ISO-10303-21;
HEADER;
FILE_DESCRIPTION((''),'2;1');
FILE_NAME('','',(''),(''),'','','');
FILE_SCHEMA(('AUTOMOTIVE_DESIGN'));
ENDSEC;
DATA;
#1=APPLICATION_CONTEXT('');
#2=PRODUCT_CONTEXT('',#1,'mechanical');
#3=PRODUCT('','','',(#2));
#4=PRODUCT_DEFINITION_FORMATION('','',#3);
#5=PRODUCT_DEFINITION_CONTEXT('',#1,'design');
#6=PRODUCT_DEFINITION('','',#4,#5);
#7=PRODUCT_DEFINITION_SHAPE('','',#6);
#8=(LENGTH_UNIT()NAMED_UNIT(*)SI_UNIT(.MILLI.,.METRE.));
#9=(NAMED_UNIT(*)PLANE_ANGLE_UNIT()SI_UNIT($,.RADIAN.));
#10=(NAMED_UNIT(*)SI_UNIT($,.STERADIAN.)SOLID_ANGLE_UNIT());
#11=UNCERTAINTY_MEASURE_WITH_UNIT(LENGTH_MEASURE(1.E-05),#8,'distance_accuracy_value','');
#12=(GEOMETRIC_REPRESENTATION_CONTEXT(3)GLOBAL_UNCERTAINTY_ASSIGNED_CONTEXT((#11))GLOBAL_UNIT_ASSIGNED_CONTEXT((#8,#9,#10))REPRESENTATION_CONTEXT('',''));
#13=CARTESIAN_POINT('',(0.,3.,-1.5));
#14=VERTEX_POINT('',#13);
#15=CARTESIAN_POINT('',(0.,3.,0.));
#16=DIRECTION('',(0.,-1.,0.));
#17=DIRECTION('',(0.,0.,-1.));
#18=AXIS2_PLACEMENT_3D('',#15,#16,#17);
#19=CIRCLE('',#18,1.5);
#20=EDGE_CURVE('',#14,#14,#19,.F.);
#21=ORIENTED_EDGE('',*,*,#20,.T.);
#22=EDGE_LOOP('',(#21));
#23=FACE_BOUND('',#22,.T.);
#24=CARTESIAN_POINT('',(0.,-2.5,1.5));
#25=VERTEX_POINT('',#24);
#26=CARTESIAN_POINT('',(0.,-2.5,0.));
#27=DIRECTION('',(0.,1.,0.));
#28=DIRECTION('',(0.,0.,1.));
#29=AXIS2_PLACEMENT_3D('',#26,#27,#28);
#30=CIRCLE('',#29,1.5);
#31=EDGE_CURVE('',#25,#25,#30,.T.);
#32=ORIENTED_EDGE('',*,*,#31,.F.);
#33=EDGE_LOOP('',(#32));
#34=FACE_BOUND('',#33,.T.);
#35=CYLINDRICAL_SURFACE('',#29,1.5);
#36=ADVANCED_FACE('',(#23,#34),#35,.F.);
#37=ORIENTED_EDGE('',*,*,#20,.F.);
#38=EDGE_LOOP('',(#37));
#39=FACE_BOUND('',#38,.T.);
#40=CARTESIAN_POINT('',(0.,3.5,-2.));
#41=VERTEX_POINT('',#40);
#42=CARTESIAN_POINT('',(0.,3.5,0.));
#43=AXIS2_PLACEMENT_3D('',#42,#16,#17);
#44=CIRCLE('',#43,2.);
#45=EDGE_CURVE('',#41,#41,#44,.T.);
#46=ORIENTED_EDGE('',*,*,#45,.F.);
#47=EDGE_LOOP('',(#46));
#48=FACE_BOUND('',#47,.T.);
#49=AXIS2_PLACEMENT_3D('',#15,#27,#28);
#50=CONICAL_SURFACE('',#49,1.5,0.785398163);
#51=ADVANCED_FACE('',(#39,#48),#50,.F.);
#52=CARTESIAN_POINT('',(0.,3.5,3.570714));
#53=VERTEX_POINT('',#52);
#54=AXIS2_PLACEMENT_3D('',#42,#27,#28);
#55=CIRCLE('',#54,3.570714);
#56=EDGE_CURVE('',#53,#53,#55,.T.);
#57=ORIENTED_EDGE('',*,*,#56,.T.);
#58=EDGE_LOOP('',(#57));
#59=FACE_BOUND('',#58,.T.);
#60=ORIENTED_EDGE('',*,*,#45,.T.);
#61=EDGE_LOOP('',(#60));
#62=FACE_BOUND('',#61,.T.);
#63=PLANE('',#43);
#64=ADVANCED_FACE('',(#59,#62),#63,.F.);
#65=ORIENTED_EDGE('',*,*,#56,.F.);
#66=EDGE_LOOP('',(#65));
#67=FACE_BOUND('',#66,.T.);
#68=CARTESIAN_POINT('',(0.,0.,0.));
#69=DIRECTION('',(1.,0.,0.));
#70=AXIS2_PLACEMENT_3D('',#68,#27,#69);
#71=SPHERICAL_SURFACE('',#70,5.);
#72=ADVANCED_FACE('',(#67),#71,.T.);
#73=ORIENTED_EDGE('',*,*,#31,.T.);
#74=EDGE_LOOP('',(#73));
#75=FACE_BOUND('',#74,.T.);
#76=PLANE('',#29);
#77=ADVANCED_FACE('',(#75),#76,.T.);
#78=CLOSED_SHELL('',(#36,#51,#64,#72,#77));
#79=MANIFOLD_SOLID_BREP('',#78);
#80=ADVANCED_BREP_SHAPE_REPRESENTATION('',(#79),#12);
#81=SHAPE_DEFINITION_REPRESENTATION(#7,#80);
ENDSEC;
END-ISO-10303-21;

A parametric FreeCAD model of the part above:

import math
import FreeCAD as App
import Part
import Sketcher

V = App.Vector
Q = App.Units.Quantity


def edges_at(feature, points):
    """Names of the edges that pass closest to the given points."""
    edges = feature.Shape.Edges
    near = lambda p: min(range(len(edges)), key=lambda i: edges[i].distToShape(Part.Vertex(*p))[0])
    return sorted({f"Edge{near(p) + 1}" for p in points})

doc = App.newDocument("Part")
body = doc.addObject("PartDesign::Body", "Body")

# Sketch on XY plane
sketch1 = body.newObject("Sketcher::SketchObject", "Sketch")
sketch1.AttachmentSupport = (doc.getObject("XY_Plane"), [""])
sketch1.MapMode = "FlatFace"
sketch1.addGeometry([
    Part.LineSegment(V(0, -5, 0), V(0, 5, 0)),
    Part.ArcOfCircle(Part.Circle(V(0, 0, 0), V(0, 0, 1), 5), math.radians(90), math.radians(270)),
], False)
sketch1.addConstraint([
    Sketcher.Constraint("Coincident", 0, 1, 1, 2),
    Sketcher.Constraint("Coincident", 1, 1, 0, 2),
    Sketcher.Constraint("Vertical", 0),
    Sketcher.Constraint("Coincident", 1, 3, -1, 1),
    Sketcher.Constraint("PointOnObject", 0, 1, -2),
    Sketcher.Constraint("Radius", 1, Q("5 mm")),
])
revolution = body.newObject("PartDesign::Revolution", "Revolution")
revolution.Profile = sketch1
revolution.ReferenceAxis = (sketch1, ["V_Axis"])
revolution.Angle = 360

# Sketch on XY plane
sketch2 = body.newObject("Sketcher::SketchObject", "Sketch001")
sketch2.AttachmentSupport = (doc.getObject("XY_Plane"), [""])
sketch2.MapMode = "FlatFace"
sketch2.addGeometry([
    Part.LineSegment(V(-3.570714, 3.5, 0), V(0, 3.5, 0)),
    Part.LineSegment(V(0, 3.5, 0), V(0, 5, 0)),
    Part.ArcOfCircle(Part.Circle(V(0, 0, 0), V(0, 0, 1), 5), math.radians(90), math.radians(135.572996)),
], False)
sketch2.addConstraint([
    Sketcher.Constraint("Coincident", 0, 2, 1, 1),
    Sketcher.Constraint("Coincident", 1, 2, 2, 1),
    Sketcher.Constraint("Coincident", 2, 2, 0, 1),
    Sketcher.Constraint("Horizontal", 0),
    Sketcher.Constraint("Vertical", 1),
    Sketcher.Constraint("Coincident", 2, 3, -1, 1),
    Sketcher.Constraint("PointOnObject", 0, 2, -2),
    Sketcher.Constraint("Radius", 2, Q("5 mm")),
    Sketcher.Constraint("DistanceY", 1, 1, 1, 2, Q("1.5 mm")),
])
groove = body.newObject("PartDesign::Groove", "Groove")
groove.Profile = sketch2
groove.ReferenceAxis = (sketch2, ["V_Axis"])
groove.Angle = 360

# Sketch on XZ plane
sketch3 = body.newObject("Sketcher::SketchObject", "Sketch002")
sketch3.AttachmentSupport = (doc.getObject("XZ_Plane"), [""])
sketch3.MapMode = "FlatFace"
sketch3.AttachmentOffset = App.Placement(V(0, 0, -3.5), App.Rotation())
sketch3.addGeometry(Part.Circle(V(0, 0, 0), V(0, 0, 1), 1.5), False)
sketch3.addConstraint([
    Sketcher.Constraint("Coincident", 0, 3, -1, 1),
    Sketcher.Constraint("Diameter", 0, Q("3 mm")),
])
pocket1 = body.newObject("PartDesign::Pocket", "Pocket")
pocket1.Profile = sketch3
pocket1.Length = 6
pocket1.Reversed = True
doc.recompute()

chamfer = body.newObject("PartDesign::Chamfer", "Chamfer")
chamfer.Base = (pocket1, edges_at(pocket1, [(0, 3.5, -1.5)]))
chamfer.Size = 0.5

doc.recompute()
